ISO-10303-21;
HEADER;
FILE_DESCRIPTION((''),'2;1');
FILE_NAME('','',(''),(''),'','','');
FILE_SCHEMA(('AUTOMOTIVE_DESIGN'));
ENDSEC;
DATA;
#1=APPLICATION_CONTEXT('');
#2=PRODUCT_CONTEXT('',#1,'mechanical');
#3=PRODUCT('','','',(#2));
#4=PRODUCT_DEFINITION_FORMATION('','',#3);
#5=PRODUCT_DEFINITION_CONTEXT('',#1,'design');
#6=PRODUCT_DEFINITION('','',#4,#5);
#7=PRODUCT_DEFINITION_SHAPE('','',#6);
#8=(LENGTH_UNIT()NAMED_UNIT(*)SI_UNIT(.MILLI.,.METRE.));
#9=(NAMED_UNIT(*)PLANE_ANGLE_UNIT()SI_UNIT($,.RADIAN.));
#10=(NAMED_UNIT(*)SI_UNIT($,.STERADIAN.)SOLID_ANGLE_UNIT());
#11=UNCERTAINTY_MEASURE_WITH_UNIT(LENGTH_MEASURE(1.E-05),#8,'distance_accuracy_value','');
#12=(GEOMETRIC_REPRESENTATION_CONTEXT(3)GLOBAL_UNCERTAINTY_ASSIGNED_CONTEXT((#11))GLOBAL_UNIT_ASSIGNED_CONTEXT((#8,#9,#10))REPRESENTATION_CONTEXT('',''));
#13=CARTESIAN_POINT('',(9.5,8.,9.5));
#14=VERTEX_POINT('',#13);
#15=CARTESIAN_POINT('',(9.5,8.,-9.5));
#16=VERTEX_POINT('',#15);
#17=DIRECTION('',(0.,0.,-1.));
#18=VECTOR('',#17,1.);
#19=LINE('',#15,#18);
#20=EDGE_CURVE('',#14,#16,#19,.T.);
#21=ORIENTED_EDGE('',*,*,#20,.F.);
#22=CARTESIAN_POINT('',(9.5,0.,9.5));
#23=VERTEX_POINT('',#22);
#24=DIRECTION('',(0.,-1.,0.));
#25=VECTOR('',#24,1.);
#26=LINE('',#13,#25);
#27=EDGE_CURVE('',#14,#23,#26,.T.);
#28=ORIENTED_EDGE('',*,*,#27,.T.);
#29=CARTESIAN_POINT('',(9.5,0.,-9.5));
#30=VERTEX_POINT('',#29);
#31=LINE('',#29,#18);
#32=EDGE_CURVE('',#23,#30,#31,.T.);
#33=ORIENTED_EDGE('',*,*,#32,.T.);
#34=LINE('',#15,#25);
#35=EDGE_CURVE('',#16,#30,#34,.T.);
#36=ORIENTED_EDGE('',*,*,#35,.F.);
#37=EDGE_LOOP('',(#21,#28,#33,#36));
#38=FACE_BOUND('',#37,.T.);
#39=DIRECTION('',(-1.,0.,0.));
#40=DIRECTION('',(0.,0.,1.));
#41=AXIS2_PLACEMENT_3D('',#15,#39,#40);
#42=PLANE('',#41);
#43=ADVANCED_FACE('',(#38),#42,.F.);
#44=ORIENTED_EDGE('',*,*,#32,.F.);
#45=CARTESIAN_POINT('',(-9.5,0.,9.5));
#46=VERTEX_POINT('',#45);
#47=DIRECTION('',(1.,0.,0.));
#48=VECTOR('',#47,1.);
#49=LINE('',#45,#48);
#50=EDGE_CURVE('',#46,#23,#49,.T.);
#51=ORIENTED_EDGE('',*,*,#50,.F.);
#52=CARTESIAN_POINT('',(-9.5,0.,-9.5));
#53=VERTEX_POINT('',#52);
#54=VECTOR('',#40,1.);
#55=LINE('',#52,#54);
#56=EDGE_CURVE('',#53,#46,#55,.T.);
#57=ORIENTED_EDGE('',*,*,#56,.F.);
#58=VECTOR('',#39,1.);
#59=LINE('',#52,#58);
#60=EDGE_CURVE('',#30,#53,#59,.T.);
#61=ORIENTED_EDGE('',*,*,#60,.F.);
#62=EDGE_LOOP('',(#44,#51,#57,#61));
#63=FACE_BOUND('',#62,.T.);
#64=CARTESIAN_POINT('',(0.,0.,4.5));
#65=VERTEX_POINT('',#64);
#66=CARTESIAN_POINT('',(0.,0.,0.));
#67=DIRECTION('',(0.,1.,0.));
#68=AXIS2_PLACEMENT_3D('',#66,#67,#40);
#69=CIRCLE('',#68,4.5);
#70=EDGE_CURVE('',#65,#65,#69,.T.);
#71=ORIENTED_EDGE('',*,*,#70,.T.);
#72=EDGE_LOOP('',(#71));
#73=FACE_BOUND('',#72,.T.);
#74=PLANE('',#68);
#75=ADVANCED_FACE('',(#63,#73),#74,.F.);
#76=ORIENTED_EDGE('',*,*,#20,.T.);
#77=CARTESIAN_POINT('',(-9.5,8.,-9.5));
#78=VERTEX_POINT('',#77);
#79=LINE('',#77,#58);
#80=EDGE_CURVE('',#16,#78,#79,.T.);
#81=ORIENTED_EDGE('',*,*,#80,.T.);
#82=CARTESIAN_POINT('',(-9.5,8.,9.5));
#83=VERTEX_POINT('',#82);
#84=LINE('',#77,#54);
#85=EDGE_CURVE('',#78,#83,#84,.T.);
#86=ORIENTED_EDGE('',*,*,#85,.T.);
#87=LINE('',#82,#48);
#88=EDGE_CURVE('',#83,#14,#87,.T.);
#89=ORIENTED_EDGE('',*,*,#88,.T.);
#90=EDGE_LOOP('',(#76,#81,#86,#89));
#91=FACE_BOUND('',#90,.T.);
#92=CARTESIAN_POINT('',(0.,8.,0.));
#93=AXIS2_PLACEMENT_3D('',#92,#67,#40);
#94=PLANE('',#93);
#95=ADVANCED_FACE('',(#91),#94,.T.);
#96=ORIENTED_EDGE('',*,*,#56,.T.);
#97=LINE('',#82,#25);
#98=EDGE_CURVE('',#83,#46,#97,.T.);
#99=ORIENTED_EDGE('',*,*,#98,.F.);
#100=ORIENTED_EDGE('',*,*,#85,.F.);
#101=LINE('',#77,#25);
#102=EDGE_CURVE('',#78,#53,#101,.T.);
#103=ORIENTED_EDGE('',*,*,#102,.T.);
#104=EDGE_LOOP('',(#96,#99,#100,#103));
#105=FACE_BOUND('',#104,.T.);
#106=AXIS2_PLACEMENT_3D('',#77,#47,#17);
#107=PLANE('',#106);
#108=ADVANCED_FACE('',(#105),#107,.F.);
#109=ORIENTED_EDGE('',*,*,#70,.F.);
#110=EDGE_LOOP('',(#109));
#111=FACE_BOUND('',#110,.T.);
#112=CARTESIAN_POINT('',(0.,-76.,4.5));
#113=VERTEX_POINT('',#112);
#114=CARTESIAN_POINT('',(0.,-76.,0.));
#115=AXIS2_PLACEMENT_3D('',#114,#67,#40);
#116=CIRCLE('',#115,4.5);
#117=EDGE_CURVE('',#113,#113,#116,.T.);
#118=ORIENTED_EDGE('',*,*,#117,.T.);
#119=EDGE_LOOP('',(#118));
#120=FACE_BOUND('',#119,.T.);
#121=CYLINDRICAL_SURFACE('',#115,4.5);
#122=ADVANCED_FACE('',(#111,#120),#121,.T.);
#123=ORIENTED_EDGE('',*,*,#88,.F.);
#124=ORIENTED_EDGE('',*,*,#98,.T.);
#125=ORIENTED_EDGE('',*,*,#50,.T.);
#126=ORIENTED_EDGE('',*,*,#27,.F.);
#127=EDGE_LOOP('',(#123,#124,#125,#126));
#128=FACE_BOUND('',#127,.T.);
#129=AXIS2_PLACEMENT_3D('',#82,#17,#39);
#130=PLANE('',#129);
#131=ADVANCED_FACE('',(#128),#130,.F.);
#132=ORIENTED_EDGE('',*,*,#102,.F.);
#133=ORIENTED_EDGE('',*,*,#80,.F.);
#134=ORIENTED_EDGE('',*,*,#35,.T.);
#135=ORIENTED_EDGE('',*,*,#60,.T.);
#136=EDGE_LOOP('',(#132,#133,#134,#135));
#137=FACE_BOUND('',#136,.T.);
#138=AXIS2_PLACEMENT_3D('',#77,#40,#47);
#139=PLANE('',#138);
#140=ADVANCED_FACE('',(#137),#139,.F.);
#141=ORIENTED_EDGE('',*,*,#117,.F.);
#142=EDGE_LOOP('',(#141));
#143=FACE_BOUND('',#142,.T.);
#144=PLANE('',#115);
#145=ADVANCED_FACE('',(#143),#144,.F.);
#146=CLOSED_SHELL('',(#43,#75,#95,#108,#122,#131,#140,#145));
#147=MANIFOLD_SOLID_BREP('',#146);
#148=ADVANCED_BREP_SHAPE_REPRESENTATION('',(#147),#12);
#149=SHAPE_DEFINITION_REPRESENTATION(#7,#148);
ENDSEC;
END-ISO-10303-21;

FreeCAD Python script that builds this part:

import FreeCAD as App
import Part
import Sketcher
Q = App.Units.Quantity


def add_polygon(sketch, points):
    """Adds a closed chain of lines whose ends are joined by coincident constraints."""
    first, n = sketch.GeometryCount, len(points)
    for a, b in zip(points, points[1:] + points[:1]):
        sketch.addGeometry(Part.LineSegment(App.Vector(*a, 0), App.Vector(*b, 0)), False)
    for i in range(n):
        sketch.addConstraint(Sketcher.Constraint("Coincident", first + i, 2, first + (i + 1) % n, 1))

doc = App.newDocument("Part")
body = doc.addObject("PartDesign::Body", "Body")

sketch1 = body.newObject("Sketcher::SketchObject", "Sketch")
sketch1.AttachmentSupport = (doc.getObject("XZ_Plane"), [""])
sketch1.MapMode = "FlatFace"
add_polygon(sketch1, [(-10, -10), (-10, 10), (10, 10), (10, -10)])
sketch1.addConstraint([
    Sketcher.Constraint("Vertical", 0),
    Sketcher.Constraint("Horizontal", 1),
    Sketcher.Constraint("Vertical", 2),
    Sketcher.Constraint("Horizontal", 3),
    Sketcher.Constraint("Symmetric", 0, 2, 2, 2, -1, 1),
    Sketcher.Constraint("Equal", 3, 0),
    Sketcher.Constraint("DistanceX", 1, 1, 1, 2, Q("19 mm")),
])
pad1 = body.newObject("PartDesign::Pad", "Pad")
pad1.Profile = sketch1
pad1.Length = 8
pad1.Reversed = True

sketch2 = body.newObject("Sketcher::SketchObject", "Sketch001")
sketch2.AttachmentSupport = (doc.getObject("XZ_Plane"), [""])
sketch2.MapMode = "FlatFace"
sketch2.addGeometry(Part.Circle(App.Vector(0, 0, 0), App.Vector(0, 0, 1), 4.5), False)
sketch2.addConstraint([
    Sketcher.Constraint("Coincident", 0, 3, -1, 1),
    Sketcher.Constraint("Diameter", 0, Q("9 mm")),
])
pad2 = body.newObject("PartDesign::Pad", "Pad001")
pad2.Profile = sketch2
pad2.Length = 76

doc.recompute()
